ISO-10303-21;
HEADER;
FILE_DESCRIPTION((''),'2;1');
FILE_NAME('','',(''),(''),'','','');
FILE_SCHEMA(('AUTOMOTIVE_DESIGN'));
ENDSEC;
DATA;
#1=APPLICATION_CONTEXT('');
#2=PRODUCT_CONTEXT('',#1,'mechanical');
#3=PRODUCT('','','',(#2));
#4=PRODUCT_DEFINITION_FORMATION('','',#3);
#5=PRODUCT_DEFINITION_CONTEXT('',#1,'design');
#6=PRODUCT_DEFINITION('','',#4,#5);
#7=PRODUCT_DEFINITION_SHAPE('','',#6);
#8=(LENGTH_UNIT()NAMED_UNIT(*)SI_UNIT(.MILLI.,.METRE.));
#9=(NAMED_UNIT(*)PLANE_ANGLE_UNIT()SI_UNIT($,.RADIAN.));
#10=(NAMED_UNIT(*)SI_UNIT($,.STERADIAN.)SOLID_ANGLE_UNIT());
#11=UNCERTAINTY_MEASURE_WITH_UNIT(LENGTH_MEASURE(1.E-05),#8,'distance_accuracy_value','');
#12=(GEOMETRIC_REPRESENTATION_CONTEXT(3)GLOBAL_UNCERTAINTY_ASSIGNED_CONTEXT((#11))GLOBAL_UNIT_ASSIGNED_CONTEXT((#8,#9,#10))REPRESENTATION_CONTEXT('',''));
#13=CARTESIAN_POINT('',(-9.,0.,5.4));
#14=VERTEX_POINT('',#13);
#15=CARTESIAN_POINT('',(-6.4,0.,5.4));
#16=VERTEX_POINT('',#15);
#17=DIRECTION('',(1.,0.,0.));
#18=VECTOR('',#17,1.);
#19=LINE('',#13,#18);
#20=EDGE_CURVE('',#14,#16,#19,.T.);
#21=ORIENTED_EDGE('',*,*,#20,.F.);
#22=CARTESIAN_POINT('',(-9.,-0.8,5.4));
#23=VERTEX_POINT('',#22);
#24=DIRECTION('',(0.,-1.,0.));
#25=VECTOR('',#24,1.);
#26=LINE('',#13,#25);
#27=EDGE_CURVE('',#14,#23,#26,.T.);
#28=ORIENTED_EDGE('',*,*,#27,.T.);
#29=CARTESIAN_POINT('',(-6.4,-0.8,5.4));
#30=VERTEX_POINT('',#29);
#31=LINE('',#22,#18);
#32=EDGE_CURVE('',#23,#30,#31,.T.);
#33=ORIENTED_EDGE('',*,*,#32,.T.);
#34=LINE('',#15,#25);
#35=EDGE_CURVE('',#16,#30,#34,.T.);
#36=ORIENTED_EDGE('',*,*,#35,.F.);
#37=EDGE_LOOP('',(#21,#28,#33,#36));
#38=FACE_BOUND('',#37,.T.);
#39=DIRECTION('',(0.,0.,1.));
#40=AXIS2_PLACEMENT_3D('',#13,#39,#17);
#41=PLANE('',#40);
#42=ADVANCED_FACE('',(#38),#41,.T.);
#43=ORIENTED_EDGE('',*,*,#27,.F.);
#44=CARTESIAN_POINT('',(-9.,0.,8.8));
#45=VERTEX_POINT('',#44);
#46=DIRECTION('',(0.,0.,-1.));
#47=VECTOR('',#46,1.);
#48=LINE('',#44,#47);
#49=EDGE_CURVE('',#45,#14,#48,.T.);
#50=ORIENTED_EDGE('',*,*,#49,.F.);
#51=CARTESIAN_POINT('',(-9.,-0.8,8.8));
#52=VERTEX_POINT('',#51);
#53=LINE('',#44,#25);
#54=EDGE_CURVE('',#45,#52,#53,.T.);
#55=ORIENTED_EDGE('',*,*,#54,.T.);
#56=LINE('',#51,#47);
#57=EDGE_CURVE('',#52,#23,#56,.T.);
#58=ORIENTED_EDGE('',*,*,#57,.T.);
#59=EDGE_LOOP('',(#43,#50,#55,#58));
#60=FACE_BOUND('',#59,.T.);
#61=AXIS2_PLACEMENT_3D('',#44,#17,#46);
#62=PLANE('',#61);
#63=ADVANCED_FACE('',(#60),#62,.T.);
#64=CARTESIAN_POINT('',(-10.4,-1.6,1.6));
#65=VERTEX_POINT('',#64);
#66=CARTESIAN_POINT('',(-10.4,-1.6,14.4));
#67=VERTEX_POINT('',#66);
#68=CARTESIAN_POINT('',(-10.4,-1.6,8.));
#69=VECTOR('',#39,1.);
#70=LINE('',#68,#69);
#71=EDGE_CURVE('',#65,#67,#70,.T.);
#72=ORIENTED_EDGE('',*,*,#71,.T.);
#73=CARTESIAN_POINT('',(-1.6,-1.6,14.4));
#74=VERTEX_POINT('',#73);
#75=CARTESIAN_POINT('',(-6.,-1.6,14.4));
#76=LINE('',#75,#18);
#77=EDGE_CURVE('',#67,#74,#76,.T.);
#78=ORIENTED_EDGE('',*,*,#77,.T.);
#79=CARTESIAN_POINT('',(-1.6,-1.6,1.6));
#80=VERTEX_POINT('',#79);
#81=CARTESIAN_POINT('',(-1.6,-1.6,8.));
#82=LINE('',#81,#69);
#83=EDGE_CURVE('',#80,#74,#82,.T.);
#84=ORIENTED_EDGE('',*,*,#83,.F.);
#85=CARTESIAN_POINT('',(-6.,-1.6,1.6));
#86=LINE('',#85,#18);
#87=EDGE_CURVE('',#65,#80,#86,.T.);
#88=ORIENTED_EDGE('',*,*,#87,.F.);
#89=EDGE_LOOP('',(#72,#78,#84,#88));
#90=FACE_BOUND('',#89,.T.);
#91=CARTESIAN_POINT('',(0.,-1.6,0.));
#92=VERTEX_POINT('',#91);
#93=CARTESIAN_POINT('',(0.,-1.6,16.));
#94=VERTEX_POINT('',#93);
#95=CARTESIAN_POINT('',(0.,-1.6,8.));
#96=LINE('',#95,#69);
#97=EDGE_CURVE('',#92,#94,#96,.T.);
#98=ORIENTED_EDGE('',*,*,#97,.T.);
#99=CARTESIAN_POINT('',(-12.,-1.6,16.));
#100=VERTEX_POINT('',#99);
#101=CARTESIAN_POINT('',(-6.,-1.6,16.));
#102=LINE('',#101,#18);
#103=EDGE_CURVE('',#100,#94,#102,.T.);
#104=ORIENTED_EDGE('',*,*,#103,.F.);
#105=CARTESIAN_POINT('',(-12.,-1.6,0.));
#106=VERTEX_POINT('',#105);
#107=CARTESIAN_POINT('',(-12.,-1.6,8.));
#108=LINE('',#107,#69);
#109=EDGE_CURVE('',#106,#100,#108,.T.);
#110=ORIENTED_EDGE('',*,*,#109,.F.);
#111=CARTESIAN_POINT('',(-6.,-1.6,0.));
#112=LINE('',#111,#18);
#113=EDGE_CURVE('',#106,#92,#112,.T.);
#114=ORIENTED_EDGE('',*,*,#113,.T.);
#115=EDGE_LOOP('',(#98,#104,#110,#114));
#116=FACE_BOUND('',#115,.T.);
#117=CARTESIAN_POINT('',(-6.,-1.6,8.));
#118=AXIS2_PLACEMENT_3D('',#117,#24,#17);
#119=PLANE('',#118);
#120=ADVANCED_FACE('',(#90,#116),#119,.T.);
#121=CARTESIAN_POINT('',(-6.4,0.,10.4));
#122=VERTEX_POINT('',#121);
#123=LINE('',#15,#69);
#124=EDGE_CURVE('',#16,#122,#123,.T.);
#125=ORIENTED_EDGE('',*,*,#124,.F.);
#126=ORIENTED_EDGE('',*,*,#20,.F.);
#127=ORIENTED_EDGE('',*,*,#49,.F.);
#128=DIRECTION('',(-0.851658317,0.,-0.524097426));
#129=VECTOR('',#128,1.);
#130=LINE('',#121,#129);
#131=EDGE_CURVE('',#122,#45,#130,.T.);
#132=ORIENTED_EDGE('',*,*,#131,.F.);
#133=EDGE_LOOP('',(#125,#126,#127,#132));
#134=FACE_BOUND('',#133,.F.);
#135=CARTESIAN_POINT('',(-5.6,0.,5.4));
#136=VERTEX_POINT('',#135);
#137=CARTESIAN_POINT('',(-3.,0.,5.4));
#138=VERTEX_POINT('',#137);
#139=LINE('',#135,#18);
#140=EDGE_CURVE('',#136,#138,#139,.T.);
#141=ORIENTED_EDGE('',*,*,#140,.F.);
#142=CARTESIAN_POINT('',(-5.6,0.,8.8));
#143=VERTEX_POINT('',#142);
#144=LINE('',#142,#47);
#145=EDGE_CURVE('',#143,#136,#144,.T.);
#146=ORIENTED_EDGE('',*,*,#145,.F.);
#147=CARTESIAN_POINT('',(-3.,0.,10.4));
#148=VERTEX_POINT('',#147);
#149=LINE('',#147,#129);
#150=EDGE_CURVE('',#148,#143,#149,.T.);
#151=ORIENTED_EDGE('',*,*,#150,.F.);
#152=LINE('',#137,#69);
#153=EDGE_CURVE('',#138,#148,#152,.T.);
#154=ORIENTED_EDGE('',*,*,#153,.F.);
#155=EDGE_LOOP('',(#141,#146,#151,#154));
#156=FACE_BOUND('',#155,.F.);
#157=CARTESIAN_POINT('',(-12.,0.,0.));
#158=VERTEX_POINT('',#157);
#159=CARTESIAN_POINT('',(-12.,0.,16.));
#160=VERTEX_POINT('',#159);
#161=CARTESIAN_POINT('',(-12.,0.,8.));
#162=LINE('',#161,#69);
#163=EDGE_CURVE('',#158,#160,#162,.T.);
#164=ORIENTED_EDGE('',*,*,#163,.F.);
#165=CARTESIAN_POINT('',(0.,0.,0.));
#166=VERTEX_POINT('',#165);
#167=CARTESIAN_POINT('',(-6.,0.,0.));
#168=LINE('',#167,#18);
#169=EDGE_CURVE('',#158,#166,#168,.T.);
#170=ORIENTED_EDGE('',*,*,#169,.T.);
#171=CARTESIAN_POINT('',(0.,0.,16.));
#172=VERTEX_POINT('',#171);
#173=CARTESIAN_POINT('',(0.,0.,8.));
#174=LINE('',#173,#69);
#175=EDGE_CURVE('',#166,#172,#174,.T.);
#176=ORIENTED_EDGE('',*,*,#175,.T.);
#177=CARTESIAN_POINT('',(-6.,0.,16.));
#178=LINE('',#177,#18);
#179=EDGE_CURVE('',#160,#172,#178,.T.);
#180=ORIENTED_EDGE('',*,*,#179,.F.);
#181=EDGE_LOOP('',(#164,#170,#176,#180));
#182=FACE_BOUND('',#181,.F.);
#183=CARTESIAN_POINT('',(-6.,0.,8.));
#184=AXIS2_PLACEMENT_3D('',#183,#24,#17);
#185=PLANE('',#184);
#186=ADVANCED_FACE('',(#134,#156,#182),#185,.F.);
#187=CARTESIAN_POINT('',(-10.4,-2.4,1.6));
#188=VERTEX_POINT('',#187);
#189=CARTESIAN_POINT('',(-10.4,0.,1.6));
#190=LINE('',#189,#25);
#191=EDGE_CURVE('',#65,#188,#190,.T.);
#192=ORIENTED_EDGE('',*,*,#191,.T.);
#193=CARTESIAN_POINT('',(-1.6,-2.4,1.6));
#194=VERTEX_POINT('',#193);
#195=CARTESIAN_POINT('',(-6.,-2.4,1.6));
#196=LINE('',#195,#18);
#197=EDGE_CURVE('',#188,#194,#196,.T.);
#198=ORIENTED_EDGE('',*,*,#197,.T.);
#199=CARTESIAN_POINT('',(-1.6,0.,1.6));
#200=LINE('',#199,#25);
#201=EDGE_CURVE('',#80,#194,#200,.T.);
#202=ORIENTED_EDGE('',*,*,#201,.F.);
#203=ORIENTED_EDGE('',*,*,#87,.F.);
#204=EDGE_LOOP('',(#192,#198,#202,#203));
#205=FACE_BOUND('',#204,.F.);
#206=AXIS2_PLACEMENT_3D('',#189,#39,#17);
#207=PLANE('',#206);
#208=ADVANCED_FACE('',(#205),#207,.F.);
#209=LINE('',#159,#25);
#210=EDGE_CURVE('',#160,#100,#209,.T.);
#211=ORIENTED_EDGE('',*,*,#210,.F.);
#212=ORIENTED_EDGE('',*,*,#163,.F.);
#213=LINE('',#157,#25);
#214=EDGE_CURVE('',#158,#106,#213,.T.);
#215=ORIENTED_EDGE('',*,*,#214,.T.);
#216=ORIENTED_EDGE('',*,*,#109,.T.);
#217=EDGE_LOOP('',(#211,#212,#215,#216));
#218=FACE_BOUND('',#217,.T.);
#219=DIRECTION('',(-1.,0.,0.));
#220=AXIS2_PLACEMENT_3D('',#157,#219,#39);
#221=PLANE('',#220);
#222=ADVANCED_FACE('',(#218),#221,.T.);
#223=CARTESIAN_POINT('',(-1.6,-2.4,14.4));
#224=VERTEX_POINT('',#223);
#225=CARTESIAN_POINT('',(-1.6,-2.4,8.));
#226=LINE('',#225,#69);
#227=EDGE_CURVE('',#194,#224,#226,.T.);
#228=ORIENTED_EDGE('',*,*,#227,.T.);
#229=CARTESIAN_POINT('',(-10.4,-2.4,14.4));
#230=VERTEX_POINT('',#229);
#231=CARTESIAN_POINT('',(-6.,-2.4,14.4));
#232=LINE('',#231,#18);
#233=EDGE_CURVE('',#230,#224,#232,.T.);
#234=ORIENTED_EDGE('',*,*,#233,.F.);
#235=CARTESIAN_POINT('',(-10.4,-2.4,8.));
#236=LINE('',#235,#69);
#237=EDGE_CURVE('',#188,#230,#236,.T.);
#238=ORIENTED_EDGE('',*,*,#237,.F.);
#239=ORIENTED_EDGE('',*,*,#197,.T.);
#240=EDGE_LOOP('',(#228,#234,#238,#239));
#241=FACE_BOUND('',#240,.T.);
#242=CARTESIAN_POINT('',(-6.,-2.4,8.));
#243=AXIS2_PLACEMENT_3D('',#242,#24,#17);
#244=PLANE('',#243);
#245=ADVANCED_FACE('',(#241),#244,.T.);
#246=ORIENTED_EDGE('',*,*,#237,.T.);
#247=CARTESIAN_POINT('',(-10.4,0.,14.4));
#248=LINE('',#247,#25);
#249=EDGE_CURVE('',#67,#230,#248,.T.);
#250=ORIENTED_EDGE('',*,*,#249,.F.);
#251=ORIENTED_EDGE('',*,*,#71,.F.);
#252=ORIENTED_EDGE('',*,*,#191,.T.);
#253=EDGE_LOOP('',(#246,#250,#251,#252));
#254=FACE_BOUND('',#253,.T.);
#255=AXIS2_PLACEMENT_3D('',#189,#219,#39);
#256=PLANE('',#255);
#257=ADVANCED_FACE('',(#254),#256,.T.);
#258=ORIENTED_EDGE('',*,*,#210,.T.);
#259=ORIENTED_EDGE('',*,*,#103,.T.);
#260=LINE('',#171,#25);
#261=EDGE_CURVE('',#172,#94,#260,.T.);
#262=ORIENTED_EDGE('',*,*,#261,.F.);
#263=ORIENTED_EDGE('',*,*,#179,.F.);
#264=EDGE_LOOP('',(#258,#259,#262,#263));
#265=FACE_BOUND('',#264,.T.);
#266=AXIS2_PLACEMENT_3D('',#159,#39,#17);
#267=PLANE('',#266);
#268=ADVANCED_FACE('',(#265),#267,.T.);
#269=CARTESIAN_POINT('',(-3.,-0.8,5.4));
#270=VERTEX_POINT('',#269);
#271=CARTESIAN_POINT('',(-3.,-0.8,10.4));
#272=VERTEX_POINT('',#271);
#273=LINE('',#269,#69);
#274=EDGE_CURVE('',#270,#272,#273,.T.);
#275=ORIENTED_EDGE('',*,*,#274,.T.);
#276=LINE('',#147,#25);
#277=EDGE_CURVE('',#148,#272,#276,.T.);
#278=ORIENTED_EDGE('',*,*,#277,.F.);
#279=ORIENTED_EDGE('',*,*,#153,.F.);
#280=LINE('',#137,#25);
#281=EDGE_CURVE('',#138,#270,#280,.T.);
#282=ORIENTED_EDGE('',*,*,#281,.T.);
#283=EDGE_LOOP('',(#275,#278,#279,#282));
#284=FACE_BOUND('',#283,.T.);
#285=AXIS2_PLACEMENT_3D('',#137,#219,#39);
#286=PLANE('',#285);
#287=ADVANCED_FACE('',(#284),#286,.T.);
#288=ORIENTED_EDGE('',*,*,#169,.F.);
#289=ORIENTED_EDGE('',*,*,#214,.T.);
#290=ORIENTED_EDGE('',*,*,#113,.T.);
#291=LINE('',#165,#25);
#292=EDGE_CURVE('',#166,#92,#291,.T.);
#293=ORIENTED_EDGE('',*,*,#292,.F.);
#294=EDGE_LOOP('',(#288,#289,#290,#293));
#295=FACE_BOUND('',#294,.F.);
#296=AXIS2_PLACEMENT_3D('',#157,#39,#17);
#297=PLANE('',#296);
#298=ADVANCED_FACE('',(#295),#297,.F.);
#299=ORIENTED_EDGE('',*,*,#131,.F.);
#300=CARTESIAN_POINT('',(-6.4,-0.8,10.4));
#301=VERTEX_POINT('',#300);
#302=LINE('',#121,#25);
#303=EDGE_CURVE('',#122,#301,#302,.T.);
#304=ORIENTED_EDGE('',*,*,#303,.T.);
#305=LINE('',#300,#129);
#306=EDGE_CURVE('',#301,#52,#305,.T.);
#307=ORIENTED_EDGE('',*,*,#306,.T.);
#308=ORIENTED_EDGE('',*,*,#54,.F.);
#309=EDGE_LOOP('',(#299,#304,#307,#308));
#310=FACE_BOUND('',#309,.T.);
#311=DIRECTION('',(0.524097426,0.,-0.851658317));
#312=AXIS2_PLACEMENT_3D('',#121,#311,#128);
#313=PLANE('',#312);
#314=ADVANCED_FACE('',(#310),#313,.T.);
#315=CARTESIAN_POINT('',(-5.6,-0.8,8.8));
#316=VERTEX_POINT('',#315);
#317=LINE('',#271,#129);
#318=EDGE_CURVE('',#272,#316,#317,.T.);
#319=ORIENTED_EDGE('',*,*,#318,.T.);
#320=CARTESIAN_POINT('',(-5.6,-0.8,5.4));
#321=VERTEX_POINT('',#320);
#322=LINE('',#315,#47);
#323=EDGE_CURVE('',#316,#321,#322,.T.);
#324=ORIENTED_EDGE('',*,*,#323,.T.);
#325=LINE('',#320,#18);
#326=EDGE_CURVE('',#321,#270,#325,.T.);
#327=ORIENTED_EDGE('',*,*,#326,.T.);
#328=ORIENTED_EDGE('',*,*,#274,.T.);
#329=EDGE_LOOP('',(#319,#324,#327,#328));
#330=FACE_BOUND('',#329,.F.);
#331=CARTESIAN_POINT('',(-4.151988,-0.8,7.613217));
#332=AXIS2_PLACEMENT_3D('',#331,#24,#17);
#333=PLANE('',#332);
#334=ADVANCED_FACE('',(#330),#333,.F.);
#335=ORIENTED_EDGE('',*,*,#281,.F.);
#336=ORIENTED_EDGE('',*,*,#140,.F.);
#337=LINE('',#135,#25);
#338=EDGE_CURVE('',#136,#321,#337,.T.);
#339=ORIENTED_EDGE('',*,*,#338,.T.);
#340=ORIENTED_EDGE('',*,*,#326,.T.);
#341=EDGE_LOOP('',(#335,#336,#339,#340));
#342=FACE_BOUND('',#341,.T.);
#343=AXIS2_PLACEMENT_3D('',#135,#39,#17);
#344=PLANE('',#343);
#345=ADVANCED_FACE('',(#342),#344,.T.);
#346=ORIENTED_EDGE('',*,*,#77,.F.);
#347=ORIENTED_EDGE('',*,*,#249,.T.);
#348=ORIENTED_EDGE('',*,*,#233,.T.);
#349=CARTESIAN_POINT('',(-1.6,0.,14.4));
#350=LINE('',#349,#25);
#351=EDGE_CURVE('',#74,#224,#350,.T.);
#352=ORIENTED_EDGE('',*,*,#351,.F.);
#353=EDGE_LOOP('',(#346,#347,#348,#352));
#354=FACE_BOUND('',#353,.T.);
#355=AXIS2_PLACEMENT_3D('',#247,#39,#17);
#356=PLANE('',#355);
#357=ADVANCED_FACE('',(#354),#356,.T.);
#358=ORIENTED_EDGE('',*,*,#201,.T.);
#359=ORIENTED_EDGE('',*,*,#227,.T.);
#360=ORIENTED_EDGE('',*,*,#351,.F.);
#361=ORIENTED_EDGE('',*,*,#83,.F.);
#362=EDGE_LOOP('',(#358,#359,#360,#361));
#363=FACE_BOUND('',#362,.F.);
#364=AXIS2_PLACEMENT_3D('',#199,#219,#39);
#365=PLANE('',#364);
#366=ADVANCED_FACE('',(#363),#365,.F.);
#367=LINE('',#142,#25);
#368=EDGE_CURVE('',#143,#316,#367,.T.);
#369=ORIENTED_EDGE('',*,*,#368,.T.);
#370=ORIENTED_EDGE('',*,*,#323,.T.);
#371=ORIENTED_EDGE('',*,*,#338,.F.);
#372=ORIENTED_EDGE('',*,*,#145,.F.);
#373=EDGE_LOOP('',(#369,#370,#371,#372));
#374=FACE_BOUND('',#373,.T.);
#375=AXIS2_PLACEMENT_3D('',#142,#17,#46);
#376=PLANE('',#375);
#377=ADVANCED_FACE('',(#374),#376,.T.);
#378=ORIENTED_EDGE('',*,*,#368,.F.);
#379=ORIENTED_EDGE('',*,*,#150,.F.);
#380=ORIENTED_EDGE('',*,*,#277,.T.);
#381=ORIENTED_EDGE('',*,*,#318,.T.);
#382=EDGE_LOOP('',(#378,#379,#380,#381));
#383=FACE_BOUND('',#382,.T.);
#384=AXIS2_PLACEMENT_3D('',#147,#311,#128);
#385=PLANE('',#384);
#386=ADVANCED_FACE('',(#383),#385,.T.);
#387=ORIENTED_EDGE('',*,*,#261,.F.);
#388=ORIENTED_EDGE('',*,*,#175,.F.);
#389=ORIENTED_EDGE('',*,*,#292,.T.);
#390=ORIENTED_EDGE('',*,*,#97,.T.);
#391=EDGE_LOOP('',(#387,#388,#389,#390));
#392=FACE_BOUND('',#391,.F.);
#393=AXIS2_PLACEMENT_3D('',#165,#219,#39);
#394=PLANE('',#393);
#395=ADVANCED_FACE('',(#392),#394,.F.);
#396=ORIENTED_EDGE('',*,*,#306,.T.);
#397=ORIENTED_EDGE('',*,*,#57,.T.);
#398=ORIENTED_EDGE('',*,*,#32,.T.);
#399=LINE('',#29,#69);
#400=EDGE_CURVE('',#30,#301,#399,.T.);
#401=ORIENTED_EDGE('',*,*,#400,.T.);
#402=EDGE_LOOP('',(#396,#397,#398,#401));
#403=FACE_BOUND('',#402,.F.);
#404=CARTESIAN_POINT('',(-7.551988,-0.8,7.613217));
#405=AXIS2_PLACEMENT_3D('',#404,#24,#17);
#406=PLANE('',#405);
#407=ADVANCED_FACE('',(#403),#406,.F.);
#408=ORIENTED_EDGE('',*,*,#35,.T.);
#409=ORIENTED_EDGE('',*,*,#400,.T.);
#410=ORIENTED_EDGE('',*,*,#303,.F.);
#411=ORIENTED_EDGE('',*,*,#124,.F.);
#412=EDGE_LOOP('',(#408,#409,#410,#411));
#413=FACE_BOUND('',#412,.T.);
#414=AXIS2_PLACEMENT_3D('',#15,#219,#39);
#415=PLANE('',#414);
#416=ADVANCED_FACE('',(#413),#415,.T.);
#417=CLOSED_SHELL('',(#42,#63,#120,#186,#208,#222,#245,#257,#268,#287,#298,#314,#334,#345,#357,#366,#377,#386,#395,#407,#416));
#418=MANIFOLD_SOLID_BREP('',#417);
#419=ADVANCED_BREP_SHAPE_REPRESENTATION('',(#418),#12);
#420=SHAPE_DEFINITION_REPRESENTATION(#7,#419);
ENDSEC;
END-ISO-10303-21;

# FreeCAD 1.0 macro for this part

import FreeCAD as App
import Part
import Sketcher

V = App.Vector
Q = App.Units.Quantity

doc = App.newDocument("Part")
params = doc.addObject("Spreadsheet::Sheet", "Params")
for row, (alias, value) in enumerate([
    ("sketch1_width", "12 mm"),
    ("sketch1_height", "16 mm"),
    ("sketch1_width2", "8.8 mm"),
    ("sketch1_height2", "12.8 mm"),
    ("pad1_length", "1.6 mm"),
    ("sketch2_width", "8.8 mm"),
    ("sketch2_height", "12.8 mm"),
    ("pad2_length", "2.4 mm"),
    ("sketch3_height", "5 mm"),
    ("sketch3_width", "2.6 mm"),
    ("sketch3_height2", "3.4 mm"),
    ("pocket1_length", "0.8 mm"),
], start=1):
    params.set(f"A{row}", alias)
    params.set(f"B{row}", "=" + value)
    params.setAlias(f"B{row}", alias)

body = doc.addObject("PartDesign::Body", "Body")

# Sketch on XZ plane
sketch1 = body.newObject("Sketcher::SketchObject", "Sketch")
sketch1.AttachmentSupport = (doc.getObject("XZ_Plane"), [""])
sketch1.MapMode = "FlatFace"
sketch1.addGeometry([
    Part.LineSegment(V(-12, 16, 0), V(-12, 0, 0)),  # 0
    Part.LineSegment(V(-12, 0, 0), V(0, 0, 0)),  # 1
    Part.LineSegment(V(0, 0, 0), V(0, 16, 0)),  # 2
    Part.LineSegment(V(0, 16, 0), V(-12, 16, 0)),  # 3
    Part.LineSegment(V(-2, 2, 0), V(-10, 2, 0)),  # 4
    Part.LineSegment(V(-10, 2, 0), V(-10, 14, 0)),  # 5
    Part.LineSegment(V(-10, 14, 0), V(-2, 14, 0)),  # 6
    Part.LineSegment(V(-2, 14, 0), V(-2, 2, 0)),  # 7
], False)
sketch1.addConstraint([
    Sketcher.Constraint("Coincident", 0, 2, 1, 1),
    Sketcher.Constraint("Coincident", 1, 2, 2, 1),
    Sketcher.Constraint("Coincident", 2, 2, 3, 1),
    Sketcher.Constraint("Coincident", 3, 2, 0, 1),
    Sketcher.Constraint("Coincident", 4, 2, 5, 1),
    Sketcher.Constraint("Coincident", 5, 2, 6, 1),
    Sketcher.Constraint("Coincident", 6, 2, 7, 1),
    Sketcher.Constraint("Coincident", 7, 2, 4, 1),
    Sketcher.Constraint("Vertical", 0),
    Sketcher.Constraint("Horizontal", 1),
    Sketcher.Constraint("Vertical", 2),
    Sketcher.Constraint("Horizontal", 3),
    Sketcher.Constraint("Horizontal", 4),
    Sketcher.Constraint("Vertical", 5),
    Sketcher.Constraint("Horizontal", 6),
    Sketcher.Constraint("Vertical", 7),
    Sketcher.Constraint("Coincident", 1, 2, -1, 1),
    Sketcher.Constraint("DistanceX", 1, 1, 1, 2, Q("12 mm")),
    Sketcher.Constraint("DistanceY", 0, 2, 0, 1, Q("16 mm")),
    Sketcher.Constraint("DistanceX", 4, 2, 4, 1, Q("8.8 mm")),
    Sketcher.Constraint("DistanceY", 5, 1, 5, 2, Q("12.8 mm")),
    Sketcher.Constraint("DistanceX", 4, 2, -1, 1, Q("10.4 mm")),
    Sketcher.Constraint("DistanceY", -1, 1, 4, 2, Q("1.6 mm")),
])
sketch1.setExpression("Constraints[17]", "Params.sketch1_width")
sketch1.setExpression("Constraints[18]", "Params.sketch1_height")
sketch1.setExpression("Constraints[19]", "Params.sketch1_width2")
sketch1.setExpression("Constraints[20]", "Params.sketch1_height2")
pad1 = body.newObject("PartDesign::Pad", "Pad")
pad1.Profile = sketch1
pad1.setExpression("Length", "Params.pad1_length")

# Sketch on XZ plane
sketch2 = body.newObject("Sketcher::SketchObject", "Sketch001")
sketch2.AttachmentSupport = (doc.getObject("XZ_Plane"), [""])
sketch2.MapMode = "FlatFace"
sketch2.addGeometry([
    Part.LineSegment(V(-10, 14, 0), V(-10, 2, 0)),
    Part.LineSegment(V(-10, 2, 0), V(-2, 2, 0)),
    Part.LineSegment(V(-2, 2, 0), V(-2, 14, 0)),
    Part.LineSegment(V(-2, 14, 0), V(-10, 14, 0)),
], False)
sketch2.addConstraint([
    Sketcher.Constraint("Coincident", 0, 2, 1, 1),
    Sketcher.Constraint("Coincident", 1, 2, 2, 1),
    Sketcher.Constraint("Coincident", 2, 2, 3, 1),
    Sketcher.Constraint("Coincident", 3, 2, 0, 1),
    Sketcher.Constraint("Vertical", 0),
    Sketcher.Constraint("Horizontal", 1),
    Sketcher.Constraint("Vertical", 2),
    Sketcher.Constraint("Horizontal", 3),
    Sketcher.Constraint("DistanceX", 1, 1, 1, 2, Q("8.8 mm")),
    Sketcher.Constraint("DistanceY", 0, 2, 0, 1, Q("12.8 mm")),
    Sketcher.Constraint("DistanceX", 0, 2, -1, 1, Q("10.4 mm")),
    Sketcher.Constraint("DistanceY", -1, 1, 0, 2, Q("1.6 mm")),
])
sketch2.setExpression("Constraints[8]", "Params.sketch2_width")
sketch2.setExpression("Constraints[9]", "Params.sketch2_height")
pad2 = body.newObject("PartDesign::Pad", "Pad001")
pad2.Profile = sketch2
pad2.setExpression("Length", "Params.pad2_length")

# Sketch on XZ plane
sketch3 = body.newObject("Sketcher::SketchObject", "Sketch002")
sketch3.AttachmentSupport = (doc.getObject("XZ_Plane"), [""])
sketch3.MapMode = "FlatFace"
sketch3.addGeometry([
    Part.LineSegment(V(-3, 5.4, 0), V(-3, 10.4, 0)),  # 0
    Part.LineSegment(V(-3, 10.4, 0), V(-5.6, 8.8, 0)),  # 1
    Part.LineSegment(V(-5.6, 8.8, 0), V(-5.6, 5.4, 0)),  # 2
    Part.LineSegment(V(-5.6, 5.4, 0), V(-3, 5.4, 0)),  # 3
    Part.LineSegment(V(-6.4, 5.4, 0), V(-6.4, 10.4, 0)),  # 4
    Part.LineSegment(V(-6.4, 10.4, 0), V(-9, 8.8, 0)),  # 5
    Part.LineSegment(V(-9, 8.8, 0), V(-9, 5.4, 0)),  # 6
    Part.LineSegment(V(-9, 5.4, 0), V(-6.4, 5.4, 0)),  # 7
], False)
sketch3.addConstraint([
    Sketcher.Constraint("Coincident", 0, 2, 1, 1),
    Sketcher.Constraint("Coincident", 1, 2, 2, 1),
    Sketcher.Constraint("Coincident", 2, 2, 3, 1),
    Sketcher.Constraint("Coincident", 3, 2, 0, 1),
    Sketcher.Constraint("Coincident", 4, 2, 5, 1),
    Sketcher.Constraint("Coincident", 5, 2, 6, 1),
    Sketcher.Constraint("Coincident", 6, 2, 7, 1),
    Sketcher.Constraint("Coincident", 7, 2, 4, 1),
    Sketcher.Constraint("Vertical", 0),
    Sketcher.Constraint("Vertical", 2),
    Sketcher.Constraint("Horizontal", 3),
    Sketcher.Constraint("Vertical", 4),
    Sketcher.Constraint("Vertical", 6),
    Sketcher.Constraint("Horizontal", 7),
    Sketcher.Constraint("Parallel", 1, 5),
    Sketcher.Constraint("Horizontal", 0, 2, 4, 2),
    Sketcher.Constraint("Horizontal", 1, 2, 5, 2),
    Sketcher.Constraint("Horizontal", 3, 2, 6, 2),
    Sketcher.Constraint("DistanceY", 0, 1, 0, 2, Q("5 mm")),
    Sketcher.Constraint("DistanceX", 3, 1, 3, 2, Q("2.6 mm")),
    Sketcher.Constraint("DistanceY", 2, 2, 2, 1, Q("3.4 mm")),
    Sketcher.Constraint("DistanceX", 0, 2, -1, 1, Q("3 mm")),
    Sketcher.Constraint("DistanceX", 5, 2, -1, 1, Q("9 mm")),
    Sketcher.Constraint("DistanceY", -1, 1, 0, 2, Q("10.4 mm")),
])
sketch3.setExpression("Constraints[18]", "Params.sketch3_height")
sketch3.setExpression("Constraints[19]", "Params.sketch3_width")
sketch3.setExpression("Constraints[20]", "Params.sketch3_height2")
pocket1 = body.newObject("PartDesign::Pocket", "Pocket")
pocket1.Profile = sketch3
pocket1.setExpression("Length", "Params.pocket1_length")
pocket1.Reversed = True

doc.recompute()
